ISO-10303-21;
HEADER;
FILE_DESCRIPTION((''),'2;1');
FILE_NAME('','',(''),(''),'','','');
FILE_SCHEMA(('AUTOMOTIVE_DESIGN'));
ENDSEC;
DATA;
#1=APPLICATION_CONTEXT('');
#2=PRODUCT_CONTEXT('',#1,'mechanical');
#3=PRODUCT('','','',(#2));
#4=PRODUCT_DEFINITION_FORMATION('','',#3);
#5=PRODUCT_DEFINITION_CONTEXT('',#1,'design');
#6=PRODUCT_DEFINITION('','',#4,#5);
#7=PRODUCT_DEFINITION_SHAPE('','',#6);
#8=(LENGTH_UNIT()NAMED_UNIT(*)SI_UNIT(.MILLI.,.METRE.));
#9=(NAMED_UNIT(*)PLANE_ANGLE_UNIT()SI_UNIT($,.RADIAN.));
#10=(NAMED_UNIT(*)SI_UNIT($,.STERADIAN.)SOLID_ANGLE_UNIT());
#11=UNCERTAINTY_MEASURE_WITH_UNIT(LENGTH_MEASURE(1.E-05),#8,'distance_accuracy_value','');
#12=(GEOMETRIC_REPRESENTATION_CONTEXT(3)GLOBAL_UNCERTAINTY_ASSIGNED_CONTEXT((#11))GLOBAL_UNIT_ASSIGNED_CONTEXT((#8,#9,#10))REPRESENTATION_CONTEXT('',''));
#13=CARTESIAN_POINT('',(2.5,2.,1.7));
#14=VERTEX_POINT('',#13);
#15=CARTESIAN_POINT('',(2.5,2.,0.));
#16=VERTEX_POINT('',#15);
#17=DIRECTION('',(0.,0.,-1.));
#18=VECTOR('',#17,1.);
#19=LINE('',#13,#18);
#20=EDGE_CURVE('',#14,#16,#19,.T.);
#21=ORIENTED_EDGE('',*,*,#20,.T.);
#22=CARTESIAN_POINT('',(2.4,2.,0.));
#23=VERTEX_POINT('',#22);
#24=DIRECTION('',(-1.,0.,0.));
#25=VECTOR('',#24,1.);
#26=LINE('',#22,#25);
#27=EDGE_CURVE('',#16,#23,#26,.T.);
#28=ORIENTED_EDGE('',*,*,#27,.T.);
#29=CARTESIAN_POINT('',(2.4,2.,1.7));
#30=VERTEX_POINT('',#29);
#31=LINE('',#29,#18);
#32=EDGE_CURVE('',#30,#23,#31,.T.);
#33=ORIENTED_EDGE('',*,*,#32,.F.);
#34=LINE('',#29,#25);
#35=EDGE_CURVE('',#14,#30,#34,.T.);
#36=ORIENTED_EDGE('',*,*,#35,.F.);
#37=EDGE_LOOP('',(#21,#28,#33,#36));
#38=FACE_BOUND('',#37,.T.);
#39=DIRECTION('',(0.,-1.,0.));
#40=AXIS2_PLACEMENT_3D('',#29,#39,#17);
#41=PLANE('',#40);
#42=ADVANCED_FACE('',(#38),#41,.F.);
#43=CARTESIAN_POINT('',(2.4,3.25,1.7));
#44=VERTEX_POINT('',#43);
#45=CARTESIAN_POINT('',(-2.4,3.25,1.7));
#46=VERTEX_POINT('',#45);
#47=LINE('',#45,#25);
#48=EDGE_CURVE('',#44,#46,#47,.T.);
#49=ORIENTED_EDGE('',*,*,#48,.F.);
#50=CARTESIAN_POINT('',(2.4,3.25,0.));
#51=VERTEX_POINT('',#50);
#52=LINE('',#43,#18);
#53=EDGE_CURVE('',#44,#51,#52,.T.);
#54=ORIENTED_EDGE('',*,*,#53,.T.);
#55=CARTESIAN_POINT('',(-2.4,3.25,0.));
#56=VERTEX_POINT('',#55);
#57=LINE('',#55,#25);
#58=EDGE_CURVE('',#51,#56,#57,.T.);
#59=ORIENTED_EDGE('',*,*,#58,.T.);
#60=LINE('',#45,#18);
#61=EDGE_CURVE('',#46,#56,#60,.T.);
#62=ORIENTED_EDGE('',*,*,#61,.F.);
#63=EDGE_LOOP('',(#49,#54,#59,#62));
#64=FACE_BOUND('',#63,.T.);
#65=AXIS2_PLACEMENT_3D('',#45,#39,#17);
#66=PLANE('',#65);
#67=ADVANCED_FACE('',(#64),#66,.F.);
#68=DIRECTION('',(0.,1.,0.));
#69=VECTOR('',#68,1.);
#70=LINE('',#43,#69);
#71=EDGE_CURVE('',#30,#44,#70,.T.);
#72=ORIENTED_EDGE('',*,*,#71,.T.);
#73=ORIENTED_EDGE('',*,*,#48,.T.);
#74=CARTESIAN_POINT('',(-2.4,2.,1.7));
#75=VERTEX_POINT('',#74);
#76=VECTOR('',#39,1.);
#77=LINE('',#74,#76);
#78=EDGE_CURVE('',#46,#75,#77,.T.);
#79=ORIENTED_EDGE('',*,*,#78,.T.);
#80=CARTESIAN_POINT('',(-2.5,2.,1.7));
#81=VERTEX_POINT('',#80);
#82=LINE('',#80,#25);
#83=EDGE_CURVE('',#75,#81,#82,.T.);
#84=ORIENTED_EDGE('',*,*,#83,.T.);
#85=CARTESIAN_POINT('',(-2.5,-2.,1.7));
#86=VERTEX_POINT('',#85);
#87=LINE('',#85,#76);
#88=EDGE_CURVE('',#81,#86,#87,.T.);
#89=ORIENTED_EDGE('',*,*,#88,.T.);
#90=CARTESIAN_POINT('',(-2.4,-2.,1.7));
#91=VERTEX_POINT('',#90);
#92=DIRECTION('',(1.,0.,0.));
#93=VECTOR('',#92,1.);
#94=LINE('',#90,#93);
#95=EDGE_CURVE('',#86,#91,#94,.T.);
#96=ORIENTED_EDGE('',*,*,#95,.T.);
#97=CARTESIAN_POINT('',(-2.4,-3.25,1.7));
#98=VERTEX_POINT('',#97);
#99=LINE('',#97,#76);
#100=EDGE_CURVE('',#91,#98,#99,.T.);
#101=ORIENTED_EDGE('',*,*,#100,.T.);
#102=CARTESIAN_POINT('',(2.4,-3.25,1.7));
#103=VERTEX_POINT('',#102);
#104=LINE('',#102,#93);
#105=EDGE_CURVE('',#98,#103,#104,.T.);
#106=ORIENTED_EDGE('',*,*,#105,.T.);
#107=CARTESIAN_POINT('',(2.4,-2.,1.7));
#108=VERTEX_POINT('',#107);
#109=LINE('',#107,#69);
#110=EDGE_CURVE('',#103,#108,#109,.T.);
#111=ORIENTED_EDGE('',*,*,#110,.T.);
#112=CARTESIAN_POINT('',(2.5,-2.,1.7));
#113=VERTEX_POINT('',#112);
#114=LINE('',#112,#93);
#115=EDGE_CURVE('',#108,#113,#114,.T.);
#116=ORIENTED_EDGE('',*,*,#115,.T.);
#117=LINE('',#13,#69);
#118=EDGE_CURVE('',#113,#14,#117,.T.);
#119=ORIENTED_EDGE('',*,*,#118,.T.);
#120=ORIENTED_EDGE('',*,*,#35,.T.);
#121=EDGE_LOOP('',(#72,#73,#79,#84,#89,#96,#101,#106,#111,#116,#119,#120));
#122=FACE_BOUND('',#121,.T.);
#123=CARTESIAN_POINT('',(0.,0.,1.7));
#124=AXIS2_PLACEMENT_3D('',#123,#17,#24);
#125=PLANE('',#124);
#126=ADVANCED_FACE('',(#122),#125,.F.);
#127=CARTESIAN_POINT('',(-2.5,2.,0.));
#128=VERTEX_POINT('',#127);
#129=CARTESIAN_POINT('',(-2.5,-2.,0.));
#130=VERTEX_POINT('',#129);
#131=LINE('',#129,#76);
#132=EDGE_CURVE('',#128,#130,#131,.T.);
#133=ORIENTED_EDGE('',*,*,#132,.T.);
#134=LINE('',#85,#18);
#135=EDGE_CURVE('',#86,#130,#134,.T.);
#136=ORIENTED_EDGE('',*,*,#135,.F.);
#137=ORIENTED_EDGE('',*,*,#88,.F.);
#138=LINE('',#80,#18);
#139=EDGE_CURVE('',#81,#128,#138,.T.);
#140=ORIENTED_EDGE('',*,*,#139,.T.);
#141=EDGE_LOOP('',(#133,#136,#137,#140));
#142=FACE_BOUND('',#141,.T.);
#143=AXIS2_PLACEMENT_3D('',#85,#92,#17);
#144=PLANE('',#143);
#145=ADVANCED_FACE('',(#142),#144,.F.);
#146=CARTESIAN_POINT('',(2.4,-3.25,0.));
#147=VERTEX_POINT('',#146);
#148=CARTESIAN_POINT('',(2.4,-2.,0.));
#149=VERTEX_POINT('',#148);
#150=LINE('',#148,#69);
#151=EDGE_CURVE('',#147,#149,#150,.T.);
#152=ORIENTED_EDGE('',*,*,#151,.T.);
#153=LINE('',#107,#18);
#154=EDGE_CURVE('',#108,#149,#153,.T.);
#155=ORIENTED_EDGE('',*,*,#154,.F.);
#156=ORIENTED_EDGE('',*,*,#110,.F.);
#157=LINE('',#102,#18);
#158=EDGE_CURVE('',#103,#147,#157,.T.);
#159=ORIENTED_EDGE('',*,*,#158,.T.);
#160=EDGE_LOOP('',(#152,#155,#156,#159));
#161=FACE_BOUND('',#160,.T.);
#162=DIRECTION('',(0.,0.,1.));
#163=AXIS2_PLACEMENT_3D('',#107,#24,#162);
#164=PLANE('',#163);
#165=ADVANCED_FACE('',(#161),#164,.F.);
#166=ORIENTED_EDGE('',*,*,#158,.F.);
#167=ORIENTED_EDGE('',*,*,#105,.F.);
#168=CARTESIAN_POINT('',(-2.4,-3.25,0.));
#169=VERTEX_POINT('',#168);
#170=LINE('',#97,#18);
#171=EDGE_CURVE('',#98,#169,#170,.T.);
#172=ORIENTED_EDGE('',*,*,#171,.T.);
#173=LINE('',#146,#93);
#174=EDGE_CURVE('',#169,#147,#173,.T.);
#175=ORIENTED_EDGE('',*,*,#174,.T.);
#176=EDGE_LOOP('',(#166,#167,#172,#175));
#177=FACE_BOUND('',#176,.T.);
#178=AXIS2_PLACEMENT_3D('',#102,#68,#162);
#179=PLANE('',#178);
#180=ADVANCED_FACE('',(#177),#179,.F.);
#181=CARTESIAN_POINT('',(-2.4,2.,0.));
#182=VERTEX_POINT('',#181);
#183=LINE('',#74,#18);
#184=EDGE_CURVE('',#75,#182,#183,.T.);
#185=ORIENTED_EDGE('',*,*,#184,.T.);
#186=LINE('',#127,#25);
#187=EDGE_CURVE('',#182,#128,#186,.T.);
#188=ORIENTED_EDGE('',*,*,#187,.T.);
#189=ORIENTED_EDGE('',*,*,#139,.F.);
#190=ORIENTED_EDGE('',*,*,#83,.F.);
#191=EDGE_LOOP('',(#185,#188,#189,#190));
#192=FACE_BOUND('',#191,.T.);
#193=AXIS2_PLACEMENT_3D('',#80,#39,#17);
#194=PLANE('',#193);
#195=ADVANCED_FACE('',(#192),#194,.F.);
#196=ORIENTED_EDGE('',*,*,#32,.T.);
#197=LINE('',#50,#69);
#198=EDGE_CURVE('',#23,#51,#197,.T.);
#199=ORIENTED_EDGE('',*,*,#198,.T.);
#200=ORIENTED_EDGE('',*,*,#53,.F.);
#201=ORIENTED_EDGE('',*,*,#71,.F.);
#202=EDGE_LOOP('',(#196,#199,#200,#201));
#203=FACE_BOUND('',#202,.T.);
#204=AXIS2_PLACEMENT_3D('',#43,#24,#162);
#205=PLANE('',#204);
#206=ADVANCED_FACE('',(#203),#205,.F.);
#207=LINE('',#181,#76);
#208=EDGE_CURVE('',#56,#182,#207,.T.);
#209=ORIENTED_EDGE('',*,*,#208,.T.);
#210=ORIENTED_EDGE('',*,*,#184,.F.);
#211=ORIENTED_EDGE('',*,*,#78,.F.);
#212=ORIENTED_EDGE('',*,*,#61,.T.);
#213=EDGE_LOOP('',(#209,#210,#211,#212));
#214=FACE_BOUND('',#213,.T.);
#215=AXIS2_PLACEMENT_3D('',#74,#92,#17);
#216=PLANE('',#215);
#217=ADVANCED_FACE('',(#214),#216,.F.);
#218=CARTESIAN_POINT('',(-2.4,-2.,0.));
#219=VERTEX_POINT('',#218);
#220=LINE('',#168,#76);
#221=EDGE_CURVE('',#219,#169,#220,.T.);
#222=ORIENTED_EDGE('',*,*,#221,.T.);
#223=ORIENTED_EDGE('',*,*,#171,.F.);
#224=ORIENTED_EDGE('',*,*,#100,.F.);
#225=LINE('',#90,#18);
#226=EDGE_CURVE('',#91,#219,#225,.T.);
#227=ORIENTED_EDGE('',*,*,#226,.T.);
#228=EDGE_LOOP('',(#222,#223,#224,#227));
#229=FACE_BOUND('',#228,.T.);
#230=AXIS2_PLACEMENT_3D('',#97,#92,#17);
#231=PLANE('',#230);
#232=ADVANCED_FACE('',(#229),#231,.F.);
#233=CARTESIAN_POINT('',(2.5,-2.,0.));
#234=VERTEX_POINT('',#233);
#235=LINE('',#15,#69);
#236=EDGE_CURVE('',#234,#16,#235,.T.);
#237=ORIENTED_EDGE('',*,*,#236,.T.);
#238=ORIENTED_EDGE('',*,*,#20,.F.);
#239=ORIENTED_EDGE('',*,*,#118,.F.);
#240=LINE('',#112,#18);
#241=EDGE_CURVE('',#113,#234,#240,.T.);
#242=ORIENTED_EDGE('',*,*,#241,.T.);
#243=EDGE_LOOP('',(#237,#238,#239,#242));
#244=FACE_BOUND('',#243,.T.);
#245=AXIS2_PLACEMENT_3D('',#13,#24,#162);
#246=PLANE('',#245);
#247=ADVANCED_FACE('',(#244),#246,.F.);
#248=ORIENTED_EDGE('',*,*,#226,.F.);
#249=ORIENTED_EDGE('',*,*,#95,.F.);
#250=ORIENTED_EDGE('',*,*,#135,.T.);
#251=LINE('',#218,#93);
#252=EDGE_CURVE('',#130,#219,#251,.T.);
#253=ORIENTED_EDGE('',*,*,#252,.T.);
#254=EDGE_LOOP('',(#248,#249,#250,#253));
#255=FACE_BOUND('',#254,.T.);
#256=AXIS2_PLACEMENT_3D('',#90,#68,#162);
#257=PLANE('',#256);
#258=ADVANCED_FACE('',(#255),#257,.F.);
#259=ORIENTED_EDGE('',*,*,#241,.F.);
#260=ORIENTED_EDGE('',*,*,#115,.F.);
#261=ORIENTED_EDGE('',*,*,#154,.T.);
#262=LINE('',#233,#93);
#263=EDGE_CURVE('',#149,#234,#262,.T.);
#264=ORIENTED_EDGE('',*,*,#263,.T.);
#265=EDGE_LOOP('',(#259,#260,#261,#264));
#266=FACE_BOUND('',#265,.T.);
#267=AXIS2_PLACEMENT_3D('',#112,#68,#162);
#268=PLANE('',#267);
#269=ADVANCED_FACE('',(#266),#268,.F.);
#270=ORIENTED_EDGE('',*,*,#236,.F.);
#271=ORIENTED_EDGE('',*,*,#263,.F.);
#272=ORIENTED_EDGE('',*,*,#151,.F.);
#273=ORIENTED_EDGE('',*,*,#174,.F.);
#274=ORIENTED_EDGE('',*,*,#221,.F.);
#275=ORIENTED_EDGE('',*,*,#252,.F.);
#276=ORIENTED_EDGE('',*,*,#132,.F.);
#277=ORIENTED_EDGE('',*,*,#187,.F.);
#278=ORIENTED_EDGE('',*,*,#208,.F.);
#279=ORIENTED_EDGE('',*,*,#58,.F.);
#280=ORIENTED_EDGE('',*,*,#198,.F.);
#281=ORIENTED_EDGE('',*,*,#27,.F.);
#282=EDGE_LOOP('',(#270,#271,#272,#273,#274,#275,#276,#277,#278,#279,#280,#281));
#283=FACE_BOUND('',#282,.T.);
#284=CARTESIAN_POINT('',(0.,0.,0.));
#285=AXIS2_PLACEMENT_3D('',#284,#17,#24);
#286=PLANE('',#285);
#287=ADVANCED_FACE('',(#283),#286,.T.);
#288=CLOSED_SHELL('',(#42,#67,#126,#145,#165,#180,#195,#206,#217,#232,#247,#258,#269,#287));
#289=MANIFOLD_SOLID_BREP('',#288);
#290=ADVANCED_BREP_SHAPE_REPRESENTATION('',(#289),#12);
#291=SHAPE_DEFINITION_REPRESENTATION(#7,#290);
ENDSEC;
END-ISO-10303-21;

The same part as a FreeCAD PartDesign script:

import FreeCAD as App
import Part
import Sketcher
from FreeCAD import Vector
Q = App.Units.Quantity

doc = App.newDocument("Part")
body = doc.addObject("PartDesign::Body", "Body")

# Sketch on XY plane
sketch1 = body.newObject("Sketcher::SketchObject", "Sketch")
sketch1.AttachmentSupport = (doc.getObject("XY_Plane"), [""])
sketch1.MapMode = "FlatFace"
sketch1.addGeometry([
    Part.LineSegment(Vector(-2.4, -2, 0), Vector(-2.4, -3.25, 0)),  # 0
    Part.LineSegment(Vector(-2.4, -3.25, 0), Vector(2.4, -3.25, 0)),  # 1
    Part.LineSegment(Vector(2.4, -3.25, 0), Vector(2.4, -2, 0)),  # 2
    Part.LineSegment(Vector(2.4, -2, 0), Vector(2.5, -2, 0)),  # 3
    Part.LineSegment(Vector(2.5, -2, 0), Vector(2.5, 2, 0)),  # 4
    Part.LineSegment(Vector(2.5, 2, 0), Vector(2.4, 2, 0)),  # 5
    Part.LineSegment(Vector(2.4, 2, 0), Vector(2.4, 3.25, 0)),  # 6
    Part.LineSegment(Vector(2.4, 3.25, 0), Vector(-2.4, 3.25, 0)),  # 7
    Part.LineSegment(Vector(-2.4, 3.25, 0), Vector(-2.4, 2, 0)),  # 8
    Part.LineSegment(Vector(-2.4, 2, 0), Vector(-2.5, 2, 0)),  # 9
    Part.LineSegment(Vector(-2.5, 2, 0), Vector(-2.5, -2, 0)),  # 10
    Part.LineSegment(Vector(-2.5, -2, 0), Vector(-2.4, -2, 0)),  # 11
], False)
sketch1.addConstraint([
    Sketcher.Constraint("Coincident", 0, 2, 1, 1),
    Sketcher.Constraint("Coincident", 1, 2, 2, 1),
    Sketcher.Constraint("Coincident", 2, 2, 3, 1),
    Sketcher.Constraint("Coincident", 3, 2, 4, 1),
    Sketcher.Constraint("Coincident", 4, 2, 5, 1),
    Sketcher.Constraint("Coincident", 5, 2, 6, 1),
    Sketcher.Constraint("Coincident", 6, 2, 7, 1),
    Sketcher.Constraint("Coincident", 7, 2, 8, 1),
    Sketcher.Constraint("Coincident", 8, 2, 9, 1),
    Sketcher.Constraint("Coincident", 9, 2, 10, 1),
    Sketcher.Constraint("Coincident", 10, 2, 11, 1),
    Sketcher.Constraint("Coincident", 11, 2, 0, 1),
    Sketcher.Constraint("Vertical", 0),
    Sketcher.Constraint("Horizontal", 1),
    Sketcher.Constraint("Vertical", 2),
    Sketcher.Constraint("Horizontal", 3),
    Sketcher.Constraint("Vertical", 4),
    Sketcher.Constraint("Horizontal", 5),
    Sketcher.Constraint("Vertical", 6),
    Sketcher.Constraint("Horizontal", 7),
    Sketcher.Constraint("Vertical", 8),
    Sketcher.Constraint("Horizontal", 9),
    Sketcher.Constraint("Vertical", 10),
    Sketcher.Constraint("Horizontal", 11),
    Sketcher.Constraint("Symmetric", 0, 2, 6, 2, -1, 1),
    Sketcher.Constraint("Symmetric", 2, 2, 8, 2, -1, 1),
    Sketcher.Constraint("Symmetric", 4, 2, 10, 2, -1, 1),
    Sketcher.Constraint("Symmetric", 5, 2, 8, 2, -2),
    Sketcher.Constraint("DistanceY", 4, 1, 4, 2, Q("4 mm")),
    Sketcher.Constraint("DistanceX", 1, 1, 1, 2, Q("4.8 mm")),
    Sketcher.Constraint("DistanceX", 3, 1, 3, 2, Q("0.1 mm")),
    Sketcher.Constraint("DistanceY", 0, 2, 0, 1, Q("1.25 mm")),
])
pad1 = body.newObject("PartDesign::Pad", "Pad")
pad1.Profile = sketch1
pad1.Length = 1.7

doc.recompute()
